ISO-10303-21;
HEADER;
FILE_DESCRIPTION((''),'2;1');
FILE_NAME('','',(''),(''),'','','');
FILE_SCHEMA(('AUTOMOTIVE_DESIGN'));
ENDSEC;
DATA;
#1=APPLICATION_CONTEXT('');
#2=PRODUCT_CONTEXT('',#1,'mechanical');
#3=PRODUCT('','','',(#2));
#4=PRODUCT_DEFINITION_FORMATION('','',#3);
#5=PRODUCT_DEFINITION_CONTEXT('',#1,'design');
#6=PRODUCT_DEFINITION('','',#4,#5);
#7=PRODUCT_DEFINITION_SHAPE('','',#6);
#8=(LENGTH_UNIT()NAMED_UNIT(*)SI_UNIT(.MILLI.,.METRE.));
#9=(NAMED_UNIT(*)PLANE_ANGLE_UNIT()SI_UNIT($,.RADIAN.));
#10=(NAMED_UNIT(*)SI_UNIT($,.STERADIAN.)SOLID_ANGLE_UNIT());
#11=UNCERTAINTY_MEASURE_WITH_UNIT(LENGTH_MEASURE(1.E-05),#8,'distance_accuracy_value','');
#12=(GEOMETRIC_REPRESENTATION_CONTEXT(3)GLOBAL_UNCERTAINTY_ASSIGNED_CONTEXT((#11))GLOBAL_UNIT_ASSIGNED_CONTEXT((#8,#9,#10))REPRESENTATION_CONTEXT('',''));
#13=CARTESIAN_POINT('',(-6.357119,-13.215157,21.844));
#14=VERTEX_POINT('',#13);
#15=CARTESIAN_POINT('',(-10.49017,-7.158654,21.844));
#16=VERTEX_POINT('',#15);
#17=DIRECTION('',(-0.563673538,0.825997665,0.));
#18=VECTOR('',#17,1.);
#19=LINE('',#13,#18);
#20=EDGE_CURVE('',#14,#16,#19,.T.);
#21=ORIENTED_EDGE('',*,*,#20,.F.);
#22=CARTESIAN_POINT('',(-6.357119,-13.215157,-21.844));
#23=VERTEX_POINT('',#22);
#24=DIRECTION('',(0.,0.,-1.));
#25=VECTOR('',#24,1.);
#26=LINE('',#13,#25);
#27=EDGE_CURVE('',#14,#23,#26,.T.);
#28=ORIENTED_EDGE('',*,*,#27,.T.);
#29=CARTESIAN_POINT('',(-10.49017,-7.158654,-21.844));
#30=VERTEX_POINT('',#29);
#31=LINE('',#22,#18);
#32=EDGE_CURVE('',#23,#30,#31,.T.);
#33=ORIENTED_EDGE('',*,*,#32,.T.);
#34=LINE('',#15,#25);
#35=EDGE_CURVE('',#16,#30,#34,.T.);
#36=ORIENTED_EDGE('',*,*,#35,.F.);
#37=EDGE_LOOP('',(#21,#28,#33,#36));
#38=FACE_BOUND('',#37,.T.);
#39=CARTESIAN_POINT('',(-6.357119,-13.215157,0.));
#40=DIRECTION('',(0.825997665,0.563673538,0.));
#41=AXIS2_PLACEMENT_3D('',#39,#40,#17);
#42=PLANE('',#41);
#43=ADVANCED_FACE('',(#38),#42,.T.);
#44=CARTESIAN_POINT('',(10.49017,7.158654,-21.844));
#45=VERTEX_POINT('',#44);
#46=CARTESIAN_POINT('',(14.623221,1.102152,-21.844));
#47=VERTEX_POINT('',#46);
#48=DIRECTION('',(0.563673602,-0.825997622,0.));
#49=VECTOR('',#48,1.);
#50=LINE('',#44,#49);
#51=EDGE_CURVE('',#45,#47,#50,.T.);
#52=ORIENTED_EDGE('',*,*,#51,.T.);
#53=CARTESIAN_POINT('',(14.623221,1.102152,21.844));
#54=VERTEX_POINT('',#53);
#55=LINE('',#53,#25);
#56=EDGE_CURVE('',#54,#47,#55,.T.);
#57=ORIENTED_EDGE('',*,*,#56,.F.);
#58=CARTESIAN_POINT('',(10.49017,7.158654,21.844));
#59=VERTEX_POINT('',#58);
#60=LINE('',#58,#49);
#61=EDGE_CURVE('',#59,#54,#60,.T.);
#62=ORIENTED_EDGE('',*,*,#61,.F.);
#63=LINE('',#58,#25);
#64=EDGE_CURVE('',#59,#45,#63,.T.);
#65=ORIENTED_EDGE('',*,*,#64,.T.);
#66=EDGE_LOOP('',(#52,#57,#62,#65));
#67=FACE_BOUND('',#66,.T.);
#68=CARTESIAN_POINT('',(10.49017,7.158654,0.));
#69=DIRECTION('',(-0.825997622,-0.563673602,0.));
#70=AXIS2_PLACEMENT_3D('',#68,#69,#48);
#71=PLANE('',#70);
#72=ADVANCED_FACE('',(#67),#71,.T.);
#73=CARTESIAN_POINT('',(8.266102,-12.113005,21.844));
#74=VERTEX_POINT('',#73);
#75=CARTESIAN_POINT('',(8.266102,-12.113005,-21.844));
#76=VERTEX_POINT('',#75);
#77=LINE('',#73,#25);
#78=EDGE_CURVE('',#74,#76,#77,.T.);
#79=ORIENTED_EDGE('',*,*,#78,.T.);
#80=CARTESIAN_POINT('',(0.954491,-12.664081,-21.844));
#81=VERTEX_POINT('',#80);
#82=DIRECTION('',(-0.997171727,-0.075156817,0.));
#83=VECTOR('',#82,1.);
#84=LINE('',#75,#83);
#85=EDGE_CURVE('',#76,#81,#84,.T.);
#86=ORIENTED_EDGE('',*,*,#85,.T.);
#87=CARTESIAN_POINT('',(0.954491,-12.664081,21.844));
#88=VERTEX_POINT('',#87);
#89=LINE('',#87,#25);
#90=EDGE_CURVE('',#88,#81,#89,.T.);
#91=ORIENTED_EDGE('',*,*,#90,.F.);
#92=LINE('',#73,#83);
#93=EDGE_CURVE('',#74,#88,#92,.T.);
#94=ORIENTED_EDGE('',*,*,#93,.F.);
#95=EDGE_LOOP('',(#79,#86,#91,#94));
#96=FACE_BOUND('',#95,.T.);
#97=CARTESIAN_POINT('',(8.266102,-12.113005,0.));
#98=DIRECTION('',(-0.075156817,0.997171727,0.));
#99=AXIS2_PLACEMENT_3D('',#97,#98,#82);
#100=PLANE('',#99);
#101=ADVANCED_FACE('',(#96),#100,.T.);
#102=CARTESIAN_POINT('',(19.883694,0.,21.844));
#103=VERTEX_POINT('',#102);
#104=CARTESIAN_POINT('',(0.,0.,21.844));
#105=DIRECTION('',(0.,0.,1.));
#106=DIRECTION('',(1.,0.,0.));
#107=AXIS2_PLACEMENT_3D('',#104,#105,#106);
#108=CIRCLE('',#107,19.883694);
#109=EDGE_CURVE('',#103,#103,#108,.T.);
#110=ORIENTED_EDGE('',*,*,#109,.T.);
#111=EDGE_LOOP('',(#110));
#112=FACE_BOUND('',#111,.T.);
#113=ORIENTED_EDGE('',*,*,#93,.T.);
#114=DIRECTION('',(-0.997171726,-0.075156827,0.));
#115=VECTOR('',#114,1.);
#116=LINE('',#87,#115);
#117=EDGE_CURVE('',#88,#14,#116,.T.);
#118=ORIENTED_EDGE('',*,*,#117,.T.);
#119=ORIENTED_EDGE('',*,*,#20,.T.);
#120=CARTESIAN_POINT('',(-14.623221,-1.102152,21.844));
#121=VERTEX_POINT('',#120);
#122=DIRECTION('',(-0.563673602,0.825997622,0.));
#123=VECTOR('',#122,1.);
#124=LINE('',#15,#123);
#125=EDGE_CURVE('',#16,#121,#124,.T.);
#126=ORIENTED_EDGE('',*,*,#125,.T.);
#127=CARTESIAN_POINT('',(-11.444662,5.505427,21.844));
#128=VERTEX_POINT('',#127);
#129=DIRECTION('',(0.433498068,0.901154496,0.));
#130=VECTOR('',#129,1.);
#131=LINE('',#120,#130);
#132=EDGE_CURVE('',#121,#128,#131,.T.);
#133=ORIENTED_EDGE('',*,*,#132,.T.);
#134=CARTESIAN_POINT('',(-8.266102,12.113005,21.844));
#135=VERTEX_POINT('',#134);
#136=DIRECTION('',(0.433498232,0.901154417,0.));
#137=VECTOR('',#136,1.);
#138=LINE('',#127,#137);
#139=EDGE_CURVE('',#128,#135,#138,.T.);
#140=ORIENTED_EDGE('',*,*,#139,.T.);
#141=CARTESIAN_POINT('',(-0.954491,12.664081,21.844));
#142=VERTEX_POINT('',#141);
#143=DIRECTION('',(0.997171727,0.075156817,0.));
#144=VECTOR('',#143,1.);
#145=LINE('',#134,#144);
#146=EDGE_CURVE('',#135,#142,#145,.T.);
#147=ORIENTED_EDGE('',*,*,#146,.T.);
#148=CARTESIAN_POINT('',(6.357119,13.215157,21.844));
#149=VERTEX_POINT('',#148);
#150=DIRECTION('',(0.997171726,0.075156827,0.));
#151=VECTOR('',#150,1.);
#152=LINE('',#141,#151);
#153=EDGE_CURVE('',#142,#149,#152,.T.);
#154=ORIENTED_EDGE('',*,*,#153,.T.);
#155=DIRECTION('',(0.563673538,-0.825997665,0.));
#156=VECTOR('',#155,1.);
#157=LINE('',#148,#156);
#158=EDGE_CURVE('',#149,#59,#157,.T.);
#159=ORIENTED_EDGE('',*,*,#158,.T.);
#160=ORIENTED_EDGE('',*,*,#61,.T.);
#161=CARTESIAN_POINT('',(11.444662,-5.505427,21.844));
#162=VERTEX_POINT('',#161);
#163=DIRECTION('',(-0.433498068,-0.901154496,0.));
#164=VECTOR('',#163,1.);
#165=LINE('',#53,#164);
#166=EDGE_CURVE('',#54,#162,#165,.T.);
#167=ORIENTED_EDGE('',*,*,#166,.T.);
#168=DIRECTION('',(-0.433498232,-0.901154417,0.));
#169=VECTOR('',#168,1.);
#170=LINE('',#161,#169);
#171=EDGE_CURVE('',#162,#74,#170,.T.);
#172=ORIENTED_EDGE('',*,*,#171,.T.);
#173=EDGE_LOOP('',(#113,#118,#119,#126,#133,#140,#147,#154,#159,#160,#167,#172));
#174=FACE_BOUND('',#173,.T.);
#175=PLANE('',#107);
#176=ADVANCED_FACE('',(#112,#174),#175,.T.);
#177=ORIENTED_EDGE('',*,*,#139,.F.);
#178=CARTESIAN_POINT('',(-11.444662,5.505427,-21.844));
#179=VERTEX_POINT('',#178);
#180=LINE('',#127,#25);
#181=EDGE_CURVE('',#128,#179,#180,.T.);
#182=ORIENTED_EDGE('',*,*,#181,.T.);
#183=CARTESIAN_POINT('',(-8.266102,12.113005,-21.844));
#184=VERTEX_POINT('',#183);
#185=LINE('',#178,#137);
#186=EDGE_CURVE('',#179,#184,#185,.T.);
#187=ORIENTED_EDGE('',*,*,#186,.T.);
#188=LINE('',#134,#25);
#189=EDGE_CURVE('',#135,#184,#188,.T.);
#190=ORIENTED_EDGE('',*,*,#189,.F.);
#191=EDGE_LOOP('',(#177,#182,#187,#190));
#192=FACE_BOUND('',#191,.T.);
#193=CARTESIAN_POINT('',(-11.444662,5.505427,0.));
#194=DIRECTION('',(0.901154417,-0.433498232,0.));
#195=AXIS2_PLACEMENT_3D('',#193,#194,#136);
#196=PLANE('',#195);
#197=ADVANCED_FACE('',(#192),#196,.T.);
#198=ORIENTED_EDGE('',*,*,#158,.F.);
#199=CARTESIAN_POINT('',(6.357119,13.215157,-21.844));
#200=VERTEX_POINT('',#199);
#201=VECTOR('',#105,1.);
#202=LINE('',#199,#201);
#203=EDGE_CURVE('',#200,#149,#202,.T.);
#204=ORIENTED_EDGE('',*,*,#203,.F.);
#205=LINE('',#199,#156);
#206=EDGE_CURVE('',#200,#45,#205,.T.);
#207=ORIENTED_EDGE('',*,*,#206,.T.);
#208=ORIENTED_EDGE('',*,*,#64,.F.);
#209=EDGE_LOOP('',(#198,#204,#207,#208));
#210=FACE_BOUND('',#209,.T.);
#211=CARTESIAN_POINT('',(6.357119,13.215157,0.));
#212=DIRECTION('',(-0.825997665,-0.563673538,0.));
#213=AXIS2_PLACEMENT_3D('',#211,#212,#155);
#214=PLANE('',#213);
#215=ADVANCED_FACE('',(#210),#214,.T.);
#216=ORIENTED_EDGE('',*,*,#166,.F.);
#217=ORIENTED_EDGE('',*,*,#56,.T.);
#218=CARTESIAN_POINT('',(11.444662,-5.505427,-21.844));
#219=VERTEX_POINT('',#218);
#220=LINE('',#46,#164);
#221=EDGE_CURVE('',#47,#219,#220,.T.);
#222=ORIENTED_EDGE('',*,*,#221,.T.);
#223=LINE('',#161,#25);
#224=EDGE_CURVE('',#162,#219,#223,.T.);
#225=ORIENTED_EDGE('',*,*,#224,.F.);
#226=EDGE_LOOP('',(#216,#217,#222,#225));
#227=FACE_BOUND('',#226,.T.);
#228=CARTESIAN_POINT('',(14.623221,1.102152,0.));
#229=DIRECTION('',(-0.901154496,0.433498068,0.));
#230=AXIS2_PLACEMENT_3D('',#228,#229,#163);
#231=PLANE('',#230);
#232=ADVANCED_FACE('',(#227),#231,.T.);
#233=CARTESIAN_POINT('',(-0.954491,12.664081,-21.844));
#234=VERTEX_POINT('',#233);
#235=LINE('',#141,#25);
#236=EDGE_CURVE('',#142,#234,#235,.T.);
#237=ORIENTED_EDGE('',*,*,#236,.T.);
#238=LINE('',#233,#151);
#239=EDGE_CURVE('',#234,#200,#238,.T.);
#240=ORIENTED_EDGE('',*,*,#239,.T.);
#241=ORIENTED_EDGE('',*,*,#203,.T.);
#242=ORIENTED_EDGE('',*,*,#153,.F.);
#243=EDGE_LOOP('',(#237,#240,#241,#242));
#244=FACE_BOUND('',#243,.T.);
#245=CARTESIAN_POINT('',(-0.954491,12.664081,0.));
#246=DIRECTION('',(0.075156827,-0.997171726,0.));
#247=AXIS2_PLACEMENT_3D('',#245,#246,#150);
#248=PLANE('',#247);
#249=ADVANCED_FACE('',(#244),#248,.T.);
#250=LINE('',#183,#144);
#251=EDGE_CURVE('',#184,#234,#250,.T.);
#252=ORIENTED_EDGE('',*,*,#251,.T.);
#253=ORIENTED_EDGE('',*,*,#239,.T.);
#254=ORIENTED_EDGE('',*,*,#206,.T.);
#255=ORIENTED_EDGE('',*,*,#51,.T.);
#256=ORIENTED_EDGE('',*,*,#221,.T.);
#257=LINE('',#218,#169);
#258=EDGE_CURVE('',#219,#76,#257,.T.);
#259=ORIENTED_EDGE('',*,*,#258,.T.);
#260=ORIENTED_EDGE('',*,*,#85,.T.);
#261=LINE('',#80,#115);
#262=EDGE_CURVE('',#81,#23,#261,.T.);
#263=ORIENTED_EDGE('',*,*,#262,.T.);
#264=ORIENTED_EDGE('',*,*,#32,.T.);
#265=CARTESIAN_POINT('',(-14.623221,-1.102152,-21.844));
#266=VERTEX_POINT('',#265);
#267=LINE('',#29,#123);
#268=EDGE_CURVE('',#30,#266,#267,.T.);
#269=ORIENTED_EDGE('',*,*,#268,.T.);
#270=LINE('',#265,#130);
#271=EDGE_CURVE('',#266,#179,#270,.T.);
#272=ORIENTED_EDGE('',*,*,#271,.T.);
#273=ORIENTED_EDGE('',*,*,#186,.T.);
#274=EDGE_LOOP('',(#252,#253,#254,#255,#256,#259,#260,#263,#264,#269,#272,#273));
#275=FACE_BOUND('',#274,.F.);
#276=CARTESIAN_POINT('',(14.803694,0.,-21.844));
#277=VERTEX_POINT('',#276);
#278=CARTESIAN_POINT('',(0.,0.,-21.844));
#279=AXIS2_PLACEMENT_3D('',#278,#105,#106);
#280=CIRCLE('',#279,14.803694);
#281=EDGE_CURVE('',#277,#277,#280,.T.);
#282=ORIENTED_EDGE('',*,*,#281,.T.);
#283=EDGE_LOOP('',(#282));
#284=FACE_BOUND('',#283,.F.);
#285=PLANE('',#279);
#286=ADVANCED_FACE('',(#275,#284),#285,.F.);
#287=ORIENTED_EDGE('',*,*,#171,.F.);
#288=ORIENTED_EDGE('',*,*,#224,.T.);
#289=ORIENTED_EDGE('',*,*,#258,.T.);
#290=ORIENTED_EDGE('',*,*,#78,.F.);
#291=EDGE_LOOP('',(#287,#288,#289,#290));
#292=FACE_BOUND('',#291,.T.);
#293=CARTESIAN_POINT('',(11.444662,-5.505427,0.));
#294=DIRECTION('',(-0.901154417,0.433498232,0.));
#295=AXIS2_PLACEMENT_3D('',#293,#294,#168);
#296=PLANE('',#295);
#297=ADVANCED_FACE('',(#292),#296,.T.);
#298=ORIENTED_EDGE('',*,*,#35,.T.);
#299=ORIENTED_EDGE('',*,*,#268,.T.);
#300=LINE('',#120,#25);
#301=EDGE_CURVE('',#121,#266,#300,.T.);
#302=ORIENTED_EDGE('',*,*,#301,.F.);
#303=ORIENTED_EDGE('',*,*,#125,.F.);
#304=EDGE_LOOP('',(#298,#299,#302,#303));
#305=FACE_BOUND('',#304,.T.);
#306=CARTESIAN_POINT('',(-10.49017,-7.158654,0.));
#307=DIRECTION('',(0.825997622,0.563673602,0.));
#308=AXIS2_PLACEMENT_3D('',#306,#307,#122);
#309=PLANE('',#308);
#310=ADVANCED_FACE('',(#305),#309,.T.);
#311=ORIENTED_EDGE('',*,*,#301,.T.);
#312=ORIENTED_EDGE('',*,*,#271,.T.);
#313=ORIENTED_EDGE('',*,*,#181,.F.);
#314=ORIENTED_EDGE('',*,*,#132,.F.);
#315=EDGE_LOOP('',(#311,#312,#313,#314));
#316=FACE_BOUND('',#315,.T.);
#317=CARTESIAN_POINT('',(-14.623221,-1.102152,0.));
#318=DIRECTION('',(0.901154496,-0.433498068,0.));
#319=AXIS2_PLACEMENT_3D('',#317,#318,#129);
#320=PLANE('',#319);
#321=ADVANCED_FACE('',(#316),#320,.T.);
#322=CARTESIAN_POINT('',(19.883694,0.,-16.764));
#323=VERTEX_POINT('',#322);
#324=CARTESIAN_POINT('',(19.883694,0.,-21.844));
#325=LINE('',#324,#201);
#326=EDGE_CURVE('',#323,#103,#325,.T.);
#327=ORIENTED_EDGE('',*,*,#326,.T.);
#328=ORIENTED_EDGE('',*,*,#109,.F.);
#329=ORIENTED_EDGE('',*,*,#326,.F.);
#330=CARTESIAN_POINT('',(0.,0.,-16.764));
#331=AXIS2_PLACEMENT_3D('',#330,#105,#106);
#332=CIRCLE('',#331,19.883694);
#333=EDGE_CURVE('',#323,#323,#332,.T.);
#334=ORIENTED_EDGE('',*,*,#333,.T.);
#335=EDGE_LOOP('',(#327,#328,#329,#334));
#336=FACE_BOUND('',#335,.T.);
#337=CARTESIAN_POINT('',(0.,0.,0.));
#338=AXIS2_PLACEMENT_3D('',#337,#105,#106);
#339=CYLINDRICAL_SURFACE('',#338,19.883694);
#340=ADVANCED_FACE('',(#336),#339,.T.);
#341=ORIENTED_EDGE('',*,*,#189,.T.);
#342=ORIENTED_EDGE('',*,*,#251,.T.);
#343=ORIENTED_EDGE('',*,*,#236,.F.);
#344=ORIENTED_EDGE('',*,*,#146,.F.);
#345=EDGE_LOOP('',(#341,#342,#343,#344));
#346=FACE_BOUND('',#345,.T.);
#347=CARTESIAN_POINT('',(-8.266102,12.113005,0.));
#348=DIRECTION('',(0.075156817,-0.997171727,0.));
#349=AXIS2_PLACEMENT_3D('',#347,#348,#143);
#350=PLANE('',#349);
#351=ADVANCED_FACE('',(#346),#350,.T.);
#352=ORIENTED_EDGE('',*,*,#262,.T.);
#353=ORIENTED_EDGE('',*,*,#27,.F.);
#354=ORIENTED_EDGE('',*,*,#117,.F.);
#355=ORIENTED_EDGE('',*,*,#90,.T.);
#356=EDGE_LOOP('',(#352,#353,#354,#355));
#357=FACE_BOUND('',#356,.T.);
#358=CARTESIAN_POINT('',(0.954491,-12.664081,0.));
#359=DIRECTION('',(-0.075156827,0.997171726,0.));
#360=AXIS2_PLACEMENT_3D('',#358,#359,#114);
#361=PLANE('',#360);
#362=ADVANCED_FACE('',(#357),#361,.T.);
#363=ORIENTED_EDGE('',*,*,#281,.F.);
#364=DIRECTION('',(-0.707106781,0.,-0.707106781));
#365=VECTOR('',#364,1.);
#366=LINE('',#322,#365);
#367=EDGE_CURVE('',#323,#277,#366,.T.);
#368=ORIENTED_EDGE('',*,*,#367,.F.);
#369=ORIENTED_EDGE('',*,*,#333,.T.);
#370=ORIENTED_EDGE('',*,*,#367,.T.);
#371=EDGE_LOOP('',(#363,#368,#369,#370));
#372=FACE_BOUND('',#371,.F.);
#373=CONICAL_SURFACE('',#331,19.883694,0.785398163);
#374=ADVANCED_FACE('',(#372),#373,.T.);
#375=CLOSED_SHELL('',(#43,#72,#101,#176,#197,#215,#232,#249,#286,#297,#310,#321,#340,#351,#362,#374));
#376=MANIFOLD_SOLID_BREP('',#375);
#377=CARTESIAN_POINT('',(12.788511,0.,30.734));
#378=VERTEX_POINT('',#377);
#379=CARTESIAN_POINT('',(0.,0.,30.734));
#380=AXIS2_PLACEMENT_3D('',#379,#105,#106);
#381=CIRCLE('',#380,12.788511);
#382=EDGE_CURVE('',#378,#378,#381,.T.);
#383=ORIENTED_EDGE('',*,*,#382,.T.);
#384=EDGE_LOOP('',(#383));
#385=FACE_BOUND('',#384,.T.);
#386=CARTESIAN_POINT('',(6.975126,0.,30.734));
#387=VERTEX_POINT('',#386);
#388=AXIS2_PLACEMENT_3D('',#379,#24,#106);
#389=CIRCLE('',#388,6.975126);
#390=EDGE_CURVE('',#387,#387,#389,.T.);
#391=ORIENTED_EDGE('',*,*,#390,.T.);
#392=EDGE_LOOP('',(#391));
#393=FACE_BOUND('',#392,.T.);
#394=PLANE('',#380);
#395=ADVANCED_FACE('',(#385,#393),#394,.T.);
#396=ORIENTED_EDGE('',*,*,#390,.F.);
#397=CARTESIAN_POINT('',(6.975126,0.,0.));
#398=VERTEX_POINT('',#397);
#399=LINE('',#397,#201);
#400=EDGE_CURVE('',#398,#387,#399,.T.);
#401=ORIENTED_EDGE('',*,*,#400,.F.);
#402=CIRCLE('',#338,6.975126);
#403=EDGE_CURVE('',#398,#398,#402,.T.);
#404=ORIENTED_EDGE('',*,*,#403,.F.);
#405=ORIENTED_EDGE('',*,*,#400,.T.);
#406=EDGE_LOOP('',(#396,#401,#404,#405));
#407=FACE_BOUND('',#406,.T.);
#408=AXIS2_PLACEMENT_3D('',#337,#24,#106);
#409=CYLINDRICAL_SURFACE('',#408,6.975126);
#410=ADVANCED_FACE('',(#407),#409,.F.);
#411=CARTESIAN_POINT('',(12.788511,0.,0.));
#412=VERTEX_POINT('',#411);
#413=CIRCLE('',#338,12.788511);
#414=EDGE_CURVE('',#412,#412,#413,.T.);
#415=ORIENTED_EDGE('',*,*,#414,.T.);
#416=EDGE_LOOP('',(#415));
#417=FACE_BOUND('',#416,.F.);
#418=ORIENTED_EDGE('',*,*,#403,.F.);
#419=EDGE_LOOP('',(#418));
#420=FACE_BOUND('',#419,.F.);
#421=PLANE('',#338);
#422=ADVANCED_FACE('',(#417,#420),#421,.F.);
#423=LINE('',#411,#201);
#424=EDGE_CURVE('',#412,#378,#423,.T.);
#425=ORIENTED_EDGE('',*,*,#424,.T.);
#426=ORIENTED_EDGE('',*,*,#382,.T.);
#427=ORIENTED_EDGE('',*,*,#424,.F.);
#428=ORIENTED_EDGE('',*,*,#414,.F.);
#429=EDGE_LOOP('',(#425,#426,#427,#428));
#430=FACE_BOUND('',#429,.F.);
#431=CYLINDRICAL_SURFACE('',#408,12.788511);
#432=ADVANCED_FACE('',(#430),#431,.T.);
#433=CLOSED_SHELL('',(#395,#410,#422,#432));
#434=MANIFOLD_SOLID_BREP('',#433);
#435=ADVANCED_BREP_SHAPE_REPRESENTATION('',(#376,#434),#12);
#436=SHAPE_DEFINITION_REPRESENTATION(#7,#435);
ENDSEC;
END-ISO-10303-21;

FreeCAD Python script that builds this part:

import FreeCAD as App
import Part
import Sketcher

V = App.Vector
Q = App.Units.Quantity


def edges_at(feature, points):
    """Names of the edges that pass closest to the given points."""
    edges = feature.Shape.Edges
    near = lambda p: min(range(len(edges)), key=lambda i: edges[i].distToShape(Part.Vertex(*p))[0])
    return sorted({f"Edge{near(p) + 1}" for p in points})


def add_polygon(sketch, points):
    """Adds a closed chain of lines whose ends are joined by coincident constraints."""
    first, n = sketch.GeometryCount, len(points)
    for a, b in zip(points, points[1:] + points[:1]):
        sketch.addGeometry(Part.LineSegment(App.Vector(*a, 0), App.Vector(*b, 0)), False)
    for i in range(n):
        sketch.addConstraint(Sketcher.Constraint("Coincident", first + i, 2, first + (i + 1) % n, 1))

doc = App.newDocument("Part")
params = doc.addObject("Spreadsheet::Sheet", "Params")
for row, (alias, value) in enumerate([
    ("pad1_length", "1.72 in"),
    ("chamfer_size", "0.2 in"),
    ("pad2_length", "1.21 in"),
    ("pocket1_length", "1.92 in"),
], start=1):
    params.set(f"A{row}", alias)
    params.set(f"B{row}", "=" + value)
    params.setAlias(f"B{row}", alias)

body = doc.addObject("PartDesign::Body", "Body")

sketch1 = body.newObject("Sketcher::SketchObject", "Sketch")
sketch1.AttachmentSupport = (doc.getObject("XY_Plane"), [""])
sketch1.MapMode = "FlatFace"
sketch1.addGeometry(Part.Circle(V(0, 0, 0), V(0, 0, 1), 19.883694), False)
add_polygon(sketch1, [(-0.954491, 12.664081), (6.357119, 13.215157), (10.49017, 7.158654), (14.623221, 1.102152), (11.444662, -5.505427), (8.266102, -12.113005), (0.954491, -12.664081), (-6.357119, -13.215157), (-10.49017, -7.158654), (-14.623221, -1.102152), (-11.444662, 5.505427), (-8.266102, 12.113005)])
sketch1.addConstraint([
    Sketcher.Constraint("Coincident", 0, 3, -1, 1),
    Sketcher.Constraint("Symmetric", 1, 2, 7, 2, -1, 1),
    Sketcher.Constraint("Symmetric", 2, 2, 8, 2, -1, 1),
    Sketcher.Constraint("Symmetric", 3, 2, 9, 2, -1, 1),
    Sketcher.Constraint("Symmetric", 4, 2, 10, 2, -1, 1),
    Sketcher.Constraint("Symmetric", 5, 2, 11, 2, -1, 1),
    Sketcher.Constraint("Symmetric", 6, 2, 12, 2, -1, 1),
    Sketcher.Constraint("Parallel", 2, 3),
    Sketcher.Constraint("Parallel", 4, 5),
    Sketcher.Constraint("Parallel", 1, 6),
    Sketcher.Constraint("Equal", 1, 2),
    Sketcher.Constraint("Equal", 2, 3),
    Sketcher.Constraint("Equal", 3, 4),
    Sketcher.Constraint("Equal", 4, 5),
    Sketcher.Constraint("Equal", 5, 6),
    Sketcher.Constraint("Diameter", 0, Q("39.767388 mm")),
    Sketcher.Constraint("Distance", 2, Q("7.332349 mm")),
    Sketcher.Constraint("DistanceX", -1, 1, 1, 2, Q("6.357119 mm")),
    Sketcher.Constraint("DistanceX", -1, 1, 2, 2, Q("10.49017 mm")),
    Sketcher.Constraint("DistanceX", -1, 1, 4, 2, Q("11.444662 mm")),
])
pad1 = body.newObject("PartDesign::Pad", "Pad")
pad1.Profile = sketch1
pad1.setExpression("Length", "Params.pad1_length")
pad1.Midplane = True
doc.recompute()

chamfer = body.newObject("PartDesign::Chamfer", "Chamfer")
chamfer.Base = (pad1, edges_at(pad1, [(-19.884, 0, -21.844)]))
chamfer.setExpression("Size", "Params.chamfer_size")
body2 = doc.addObject("PartDesign::Body", "Body001")

sketch2 = body2.newObject("Sketcher::SketchObject", "Sketch001")
sketch2.AttachmentSupport = (doc.getObject("XY_Plane001"), [""])
sketch2.MapMode = "FlatFace"
sketch2.addGeometry(Part.Circle(V(0, 0, 0), V(0, 0, 1), 12.788511), False)
sketch2.addConstraint([
    Sketcher.Constraint("Coincident", 0, 3, -1, 1),
    Sketcher.Constraint("Diameter", 0, Q("25.577022 mm")),
])
pad2 = body2.newObject("PartDesign::Pad", "Pad001")
pad2.Profile = sketch2
pad2.setExpression("Length", "Params.pad2_length")

sketch3 = body2.newObject("Sketcher::SketchObject", "Sketch002")
sketch3.AttachmentSupport = (doc.getObject("XY_Plane001"), [""])
sketch3.MapMode = "FlatFace"
sketch3.addGeometry(Part.Circle(V(0, 0, 0), V(0, 0, 1), 6.975126), False)
sketch3.addConstraint([
    Sketcher.Constraint("Coincident", 0, 3, -1, 1),
    Sketcher.Constraint("Diameter", 0, Q("13.950252 mm")),
])
pocket1 = body2.newObject("PartDesign::Pocket", "Pocket")
pocket1.Profile = sketch3
pocket1.setExpression("Length", "Params.pocket1_length")
pocket1.Reversed = True

doc.recompute()
